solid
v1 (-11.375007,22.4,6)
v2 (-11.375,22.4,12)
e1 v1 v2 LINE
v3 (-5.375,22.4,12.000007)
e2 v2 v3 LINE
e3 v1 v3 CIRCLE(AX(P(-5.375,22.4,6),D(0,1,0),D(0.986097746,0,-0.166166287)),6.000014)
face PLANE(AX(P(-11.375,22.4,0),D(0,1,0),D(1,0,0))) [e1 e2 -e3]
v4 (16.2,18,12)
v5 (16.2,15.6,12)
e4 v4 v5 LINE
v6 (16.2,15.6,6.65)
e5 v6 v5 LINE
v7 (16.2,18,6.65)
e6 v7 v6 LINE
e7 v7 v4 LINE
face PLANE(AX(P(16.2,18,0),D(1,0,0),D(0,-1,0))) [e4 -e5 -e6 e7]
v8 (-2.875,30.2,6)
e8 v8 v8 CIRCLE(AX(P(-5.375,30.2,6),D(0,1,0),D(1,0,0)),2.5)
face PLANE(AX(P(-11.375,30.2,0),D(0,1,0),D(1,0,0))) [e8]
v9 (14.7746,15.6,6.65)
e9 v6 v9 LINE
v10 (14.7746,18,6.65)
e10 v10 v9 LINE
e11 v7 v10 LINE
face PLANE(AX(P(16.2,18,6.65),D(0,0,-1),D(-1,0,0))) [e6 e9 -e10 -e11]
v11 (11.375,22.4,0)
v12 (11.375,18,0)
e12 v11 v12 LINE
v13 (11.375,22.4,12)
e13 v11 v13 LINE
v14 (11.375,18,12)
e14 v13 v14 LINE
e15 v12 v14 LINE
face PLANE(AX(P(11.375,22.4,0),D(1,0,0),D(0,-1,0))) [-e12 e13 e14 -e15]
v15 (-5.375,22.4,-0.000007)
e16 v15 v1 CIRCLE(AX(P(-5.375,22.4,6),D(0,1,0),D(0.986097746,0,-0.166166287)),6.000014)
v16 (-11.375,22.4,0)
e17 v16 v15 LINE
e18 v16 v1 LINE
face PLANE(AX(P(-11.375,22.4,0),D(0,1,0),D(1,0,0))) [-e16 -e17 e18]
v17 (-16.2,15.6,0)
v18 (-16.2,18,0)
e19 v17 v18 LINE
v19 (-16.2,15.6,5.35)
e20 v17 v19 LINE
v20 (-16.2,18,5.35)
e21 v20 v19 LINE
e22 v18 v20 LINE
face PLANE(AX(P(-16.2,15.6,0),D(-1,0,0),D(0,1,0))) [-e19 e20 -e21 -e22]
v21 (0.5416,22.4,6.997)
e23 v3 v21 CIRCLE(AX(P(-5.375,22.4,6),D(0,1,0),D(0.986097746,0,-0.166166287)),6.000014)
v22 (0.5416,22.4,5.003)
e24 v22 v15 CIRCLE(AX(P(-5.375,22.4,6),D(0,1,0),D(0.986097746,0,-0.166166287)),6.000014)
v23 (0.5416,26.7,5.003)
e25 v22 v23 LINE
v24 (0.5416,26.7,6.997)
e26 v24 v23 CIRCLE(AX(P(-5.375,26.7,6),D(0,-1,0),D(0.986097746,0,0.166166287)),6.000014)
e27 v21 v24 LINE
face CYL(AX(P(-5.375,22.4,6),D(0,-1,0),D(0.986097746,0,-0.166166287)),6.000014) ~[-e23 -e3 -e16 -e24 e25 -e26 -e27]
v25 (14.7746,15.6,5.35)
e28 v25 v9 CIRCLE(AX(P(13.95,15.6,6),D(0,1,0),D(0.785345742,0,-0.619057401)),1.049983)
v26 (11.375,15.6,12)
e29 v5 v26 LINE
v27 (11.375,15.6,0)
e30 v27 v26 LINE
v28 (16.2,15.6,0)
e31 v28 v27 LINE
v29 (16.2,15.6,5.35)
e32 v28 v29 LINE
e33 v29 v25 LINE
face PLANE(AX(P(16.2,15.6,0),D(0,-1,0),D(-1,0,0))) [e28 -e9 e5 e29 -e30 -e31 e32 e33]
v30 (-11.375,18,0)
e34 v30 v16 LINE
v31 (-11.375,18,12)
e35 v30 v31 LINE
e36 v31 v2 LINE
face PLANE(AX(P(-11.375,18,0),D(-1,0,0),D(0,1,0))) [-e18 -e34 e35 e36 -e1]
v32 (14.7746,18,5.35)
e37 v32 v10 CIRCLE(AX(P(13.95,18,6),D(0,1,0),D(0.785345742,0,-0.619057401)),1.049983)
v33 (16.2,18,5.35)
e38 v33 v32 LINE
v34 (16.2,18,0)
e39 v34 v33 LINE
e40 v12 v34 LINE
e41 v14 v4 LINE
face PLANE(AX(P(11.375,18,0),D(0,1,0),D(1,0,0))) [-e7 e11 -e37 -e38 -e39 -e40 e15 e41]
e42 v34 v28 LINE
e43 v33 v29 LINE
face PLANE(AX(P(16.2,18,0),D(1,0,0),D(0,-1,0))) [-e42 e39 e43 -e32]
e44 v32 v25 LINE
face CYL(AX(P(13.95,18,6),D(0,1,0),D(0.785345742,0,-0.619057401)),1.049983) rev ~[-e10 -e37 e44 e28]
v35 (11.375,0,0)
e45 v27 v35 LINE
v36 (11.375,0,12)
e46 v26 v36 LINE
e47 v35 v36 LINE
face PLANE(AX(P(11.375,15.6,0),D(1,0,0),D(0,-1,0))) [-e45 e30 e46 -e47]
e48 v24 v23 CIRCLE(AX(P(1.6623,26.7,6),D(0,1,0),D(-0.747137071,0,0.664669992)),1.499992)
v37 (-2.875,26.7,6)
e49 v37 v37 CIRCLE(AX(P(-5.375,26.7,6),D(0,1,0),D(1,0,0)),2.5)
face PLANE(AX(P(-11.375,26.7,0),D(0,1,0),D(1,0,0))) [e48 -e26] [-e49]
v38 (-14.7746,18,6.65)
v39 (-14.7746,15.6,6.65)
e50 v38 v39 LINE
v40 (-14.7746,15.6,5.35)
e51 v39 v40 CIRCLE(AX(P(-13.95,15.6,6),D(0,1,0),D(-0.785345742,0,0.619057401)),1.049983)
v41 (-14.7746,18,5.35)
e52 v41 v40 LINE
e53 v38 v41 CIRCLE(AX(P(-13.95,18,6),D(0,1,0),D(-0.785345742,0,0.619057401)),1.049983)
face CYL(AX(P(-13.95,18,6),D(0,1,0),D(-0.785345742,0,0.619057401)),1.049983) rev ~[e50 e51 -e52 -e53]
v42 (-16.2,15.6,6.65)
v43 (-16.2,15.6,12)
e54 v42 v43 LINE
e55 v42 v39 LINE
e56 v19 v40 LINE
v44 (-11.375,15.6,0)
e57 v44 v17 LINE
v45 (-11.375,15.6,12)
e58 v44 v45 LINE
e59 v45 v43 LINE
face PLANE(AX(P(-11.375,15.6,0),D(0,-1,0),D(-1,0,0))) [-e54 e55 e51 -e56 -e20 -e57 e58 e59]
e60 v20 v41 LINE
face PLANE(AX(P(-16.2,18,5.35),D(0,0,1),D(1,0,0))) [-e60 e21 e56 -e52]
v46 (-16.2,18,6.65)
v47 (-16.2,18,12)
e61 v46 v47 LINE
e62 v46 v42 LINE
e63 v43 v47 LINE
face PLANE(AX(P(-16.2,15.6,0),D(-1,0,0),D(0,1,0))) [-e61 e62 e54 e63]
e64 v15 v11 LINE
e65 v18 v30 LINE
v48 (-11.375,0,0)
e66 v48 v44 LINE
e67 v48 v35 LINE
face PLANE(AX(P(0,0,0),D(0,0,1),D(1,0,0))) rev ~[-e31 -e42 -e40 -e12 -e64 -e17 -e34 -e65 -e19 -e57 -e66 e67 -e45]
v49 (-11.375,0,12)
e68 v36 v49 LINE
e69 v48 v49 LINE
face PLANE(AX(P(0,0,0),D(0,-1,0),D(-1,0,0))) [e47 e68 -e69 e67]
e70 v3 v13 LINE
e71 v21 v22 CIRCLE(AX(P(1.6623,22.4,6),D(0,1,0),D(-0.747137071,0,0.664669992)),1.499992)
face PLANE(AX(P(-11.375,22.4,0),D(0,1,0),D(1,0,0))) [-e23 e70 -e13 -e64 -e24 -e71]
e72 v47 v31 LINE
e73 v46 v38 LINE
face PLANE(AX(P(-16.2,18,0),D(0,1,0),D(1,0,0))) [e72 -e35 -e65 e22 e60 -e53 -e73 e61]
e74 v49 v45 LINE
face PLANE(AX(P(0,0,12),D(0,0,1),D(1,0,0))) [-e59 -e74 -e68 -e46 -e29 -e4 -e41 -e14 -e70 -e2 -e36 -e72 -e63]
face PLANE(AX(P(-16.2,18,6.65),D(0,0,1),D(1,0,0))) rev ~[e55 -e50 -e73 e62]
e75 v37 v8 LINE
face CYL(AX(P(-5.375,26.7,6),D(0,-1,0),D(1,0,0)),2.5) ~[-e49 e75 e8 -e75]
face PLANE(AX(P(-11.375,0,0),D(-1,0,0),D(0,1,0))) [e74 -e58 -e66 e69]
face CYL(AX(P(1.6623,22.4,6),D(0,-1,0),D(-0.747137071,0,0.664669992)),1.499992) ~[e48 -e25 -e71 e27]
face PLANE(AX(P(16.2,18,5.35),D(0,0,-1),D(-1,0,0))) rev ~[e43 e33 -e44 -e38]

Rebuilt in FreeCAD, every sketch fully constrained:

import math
import FreeCAD as App
import Part
import Sketcher
from FreeCAD import Vector
Q = App.Units.Quantity


def add_polygon(sketch, points):
    """Adds a closed chain of lines whose ends are joined by coincident constraints."""
    first, n = sketch.GeometryCount, len(points)
    for a, b in zip(points, points[1:] + points[:1]):
        sketch.addGeometry(Part.LineSegment(App.Vector(*a, 0), App.Vector(*b, 0)), False)
    for i in range(n):
        sketch.addConstraint(Sketcher.Constraint("Coincident", first + i, 2, first + (i + 1) % n, 1))

doc = App.newDocument("Part")
body = doc.addObject("PartDesign::Body", "Body")

# Sketch on XY plane
sketch1 = body.newObject("Sketcher::SketchObject", "Sketch")
sketch1.AttachmentSupport = (doc.getObject("XY_Plane"), [""])
sketch1.MapMode = "FlatFace"
add_polygon(sketch1, [(-11.4, 0), (11.4, 0), (11.4, 15.6), (16.2, 15.6), (16.2, 18), (11.4, 18), (11.4, 22.4), (-11.4, 22.4), (-11.4, 18), (-16.2, 18), (-16.2, 15.6), (-11.4, 15.6)])  # lines 0-11
sketch1.addConstraint([
    Sketcher.Constraint("Horizontal", 0),
    Sketcher.Constraint("Vertical", 1),
    Sketcher.Constraint("Horizontal", 2),
    Sketcher.Constraint("Vertical", 3),
    Sketcher.Constraint("Horizontal", 4),
    Sketcher.Constraint("Vertical", 5),
    Sketcher.Constraint("Horizontal", 6),
    Sketcher.Constraint("Vertical", 7),
    Sketcher.Constraint("Horizontal", 8),
    Sketcher.Constraint("Vertical", 9),
    Sketcher.Constraint("Horizontal", 10),
    Sketcher.Constraint("Vertical", 11),
    Sketcher.Constraint("Symmetric", 0, 2, 11, 2, -1, 1),
    Sketcher.Constraint("Symmetric", 4, 2, 7, 2, -2),
    Sketcher.Constraint("Symmetric", 2, 2, 9, 2, -2),
    Sketcher.Constraint("Vertical", 1, 2, 4, 2),
    Sketcher.Constraint("DistanceY", 1, 1, 1, 2, Q("15.6 mm")),
    Sketcher.Constraint("DistanceY", 3, 1, 3, 2, Q("2.4 mm")),
    Sketcher.Constraint("DistanceY", 5, 1, 5, 2, Q("4.4 mm")),
    Sketcher.Constraint("DistanceX", 0, 1, 0, 2, Q("22.75 mm")),
    Sketcher.Constraint("DistanceX", 2, 1, 2, 2, Q("4.825 mm")),
])
pad1 = body.newObject("PartDesign::Pad", "Pad")
pad1.Profile = sketch1
pad1.Length = 12

# Sketch on XZ plane
sketch2 = body.newObject("Sketcher::SketchObject", "Sketch001")
sketch2.AttachmentSupport = (doc.getObject("XZ_Plane"), [""])
sketch2.MapMode = "FlatFace"
sketch2.AttachmentOffset = App.Placement(Vector(0, 0, -22.4), App.Rotation())
sketch2.addGeometry([
    Part.ArcOfCircle(Part.Circle(Vector(-5.4, 6, 0), Vector(0, 0, 1), 6), math.radians(10), math.radians(350)),
    Part.ArcOfCircle(Part.Circle(Vector(1.7, 6, 0), Vector(0, 0, 1), 1.5), math.radians(-138), math.radians(138)),
], False)
sketch2.addConstraint([
    Sketcher.Constraint("Coincident", 0, 1, 1, 2),
    Sketcher.Constraint("Coincident", 1, 1, 0, 2),
    Sketcher.Constraint("Horizontal", 0, 3, 1, 3),
    Sketcher.Constraint("Radius", 1, Q("1.5 mm")),
    Sketcher.Constraint("Radius", 0, Q("6 mm")),
    Sketcher.Constraint("DistanceY", -1, 1, 0, 3, Q("6 mm")),
    Sketcher.Constraint("DistanceX", 0, 3, -1, 1, Q("5.375 mm")),
    Sketcher.Constraint("DistanceY", -1, 1, 0, 1, Q("6.997 mm")),
])
pad2 = body.newObject("PartDesign::Pad", "Pad001")
pad2.Profile = sketch2
pad2.Length = 4.3
pad2.Reversed = True

# Sketch on XZ plane
sketch3 = body.newObject("Sketcher::SketchObject", "Sketch002")
sketch3.AttachmentSupport = (doc.getObject("XZ_Plane"), [""])
sketch3.MapMode = "FlatFace"
sketch3.AttachmentOffset = App.Placement(Vector(0, 0, -26.7), App.Rotation())
sketch3.addGeometry(Part.Circle(Vector(-5.4, 6, 0), Vector(0, 0, 1), 2.5), False)
sketch3.addConstraint([
    Sketcher.Constraint("Diameter", 0, Q("5 mm")),
    Sketcher.Constraint("DistanceY", -1, 1, 0, 3, Q("6 mm")),
    Sketcher.Constraint("DistanceX", 0, 3, -1, 1, Q("5.375 mm")),
])
pad3 = body.newObject("PartDesign::Pad", "Pad002")
pad3.Profile = sketch3
pad3.Length = 3.5
pad3.Reversed = True

# Sketch on XZ plane
sketch4 = body.newObject("Sketcher::SketchObject", "Sketch003")
sketch4.AttachmentSupport = (doc.getObject("XZ_Plane"), [""])
sketch4.MapMode = "FlatFace"
sketch4.AttachmentOffset = App.Placement(Vector(0, 0, -18), App.Rotation())
sketch4.addGeometry([
    Part.LineSegment(Vector(-14.8, 5.3, 0), Vector(-16.6, 5.3, 0)),  # 0
    Part.LineSegment(Vector(-16.6, 5.3, 0), Vector(-16.6, 6.7, 0)),  # 1
    Part.LineSegment(Vector(-16.6, 6.7, 0), Vector(-14.8, 6.7, 0)),  # 2
    Part.ArcOfCircle(Part.Circle(Vector(-13.9, 6, 0), Vector(0, 0, 1), 1), math.radians(-142), math.radians(142)),  # 3
    Part.LineSegment(Vector(14.8, 6.7, 0), Vector(16.6, 6.7, 0)),  # 4
    Part.LineSegment(Vector(16.6, 6.7, 0), Vector(16.6, 5.3, 0)),  # 5
    Part.LineSegment(Vector(16.6, 5.3, 0), Vector(14.8, 5.3, 0)),  # 6
    Part.ArcOfCircle(Part.Circle(Vector(13.9, 6, 0), Vector(0, 0, 1), 1), math.radians(38), math.radians(322)),  # 7
], False)
sketch4.addConstraint([
    Sketcher.Constraint("Coincident", 0, 2, 1, 1),
    Sketcher.Constraint("Coincident", 1, 2, 2, 1),
    Sketcher.Constraint("Coincident", 2, 2, 3, 2),
    Sketcher.Constraint("Coincident", 3, 1, 0, 1),
    Sketcher.Constraint("Coincident", 4, 2, 5, 1),
    Sketcher.Constraint("Coincident", 5, 2, 6, 1),
    Sketcher.Constraint("Coincident", 6, 2, 7, 2),
    Sketcher.Constraint("Coincident", 7, 1, 4, 1),
    Sketcher.Constraint("Horizontal", 0),
    Sketcher.Constraint("Vertical", 1),
    Sketcher.Constraint("Horizontal", 2),
    Sketcher.Constraint("Horizontal", 4),
    Sketcher.Constraint("Vertical", 5),
    Sketcher.Constraint("Horizontal", 6),
    Sketcher.Constraint("Equal", 3, 7),
    Sketcher.Constraint("Symmetric", 3, 3, 7, 3, -2),
    Sketcher.Constraint("Horizontal", 2, 2, 4, 2),
    Sketcher.Constraint("Horizontal", 3, 1, 5, 2),
    Sketcher.Constraint("Vertical", 2, 2, 3, 1),
    Sketcher.Constraint("Radius", 3, Q("1.05 mm")),
    Sketcher.Constraint("DistanceY", 1, 1, 1, 2, Q("1.3 mm")),
    Sketcher.Constraint("DistanceX", 3, 3, 7, 3, Q("27.9 mm")),
    Sketcher.Constraint("DistanceY", -1, 1, 3, 3, Q("6 mm")),
    Sketcher.Constraint("DistanceX", 0, 2, 0, 1, Q("1.7786 mm")),
    Sketcher.Constraint("DistanceX", 4, 1, 4, 2, Q("1.8088 mm")),
])
pocket1 = body.newObject("PartDesign::Pocket", "Pocket")
pocket1.Profile = sketch4
pocket1.Type = "UpToFirst"
pocket1.Reversed = True

doc.recompute()
